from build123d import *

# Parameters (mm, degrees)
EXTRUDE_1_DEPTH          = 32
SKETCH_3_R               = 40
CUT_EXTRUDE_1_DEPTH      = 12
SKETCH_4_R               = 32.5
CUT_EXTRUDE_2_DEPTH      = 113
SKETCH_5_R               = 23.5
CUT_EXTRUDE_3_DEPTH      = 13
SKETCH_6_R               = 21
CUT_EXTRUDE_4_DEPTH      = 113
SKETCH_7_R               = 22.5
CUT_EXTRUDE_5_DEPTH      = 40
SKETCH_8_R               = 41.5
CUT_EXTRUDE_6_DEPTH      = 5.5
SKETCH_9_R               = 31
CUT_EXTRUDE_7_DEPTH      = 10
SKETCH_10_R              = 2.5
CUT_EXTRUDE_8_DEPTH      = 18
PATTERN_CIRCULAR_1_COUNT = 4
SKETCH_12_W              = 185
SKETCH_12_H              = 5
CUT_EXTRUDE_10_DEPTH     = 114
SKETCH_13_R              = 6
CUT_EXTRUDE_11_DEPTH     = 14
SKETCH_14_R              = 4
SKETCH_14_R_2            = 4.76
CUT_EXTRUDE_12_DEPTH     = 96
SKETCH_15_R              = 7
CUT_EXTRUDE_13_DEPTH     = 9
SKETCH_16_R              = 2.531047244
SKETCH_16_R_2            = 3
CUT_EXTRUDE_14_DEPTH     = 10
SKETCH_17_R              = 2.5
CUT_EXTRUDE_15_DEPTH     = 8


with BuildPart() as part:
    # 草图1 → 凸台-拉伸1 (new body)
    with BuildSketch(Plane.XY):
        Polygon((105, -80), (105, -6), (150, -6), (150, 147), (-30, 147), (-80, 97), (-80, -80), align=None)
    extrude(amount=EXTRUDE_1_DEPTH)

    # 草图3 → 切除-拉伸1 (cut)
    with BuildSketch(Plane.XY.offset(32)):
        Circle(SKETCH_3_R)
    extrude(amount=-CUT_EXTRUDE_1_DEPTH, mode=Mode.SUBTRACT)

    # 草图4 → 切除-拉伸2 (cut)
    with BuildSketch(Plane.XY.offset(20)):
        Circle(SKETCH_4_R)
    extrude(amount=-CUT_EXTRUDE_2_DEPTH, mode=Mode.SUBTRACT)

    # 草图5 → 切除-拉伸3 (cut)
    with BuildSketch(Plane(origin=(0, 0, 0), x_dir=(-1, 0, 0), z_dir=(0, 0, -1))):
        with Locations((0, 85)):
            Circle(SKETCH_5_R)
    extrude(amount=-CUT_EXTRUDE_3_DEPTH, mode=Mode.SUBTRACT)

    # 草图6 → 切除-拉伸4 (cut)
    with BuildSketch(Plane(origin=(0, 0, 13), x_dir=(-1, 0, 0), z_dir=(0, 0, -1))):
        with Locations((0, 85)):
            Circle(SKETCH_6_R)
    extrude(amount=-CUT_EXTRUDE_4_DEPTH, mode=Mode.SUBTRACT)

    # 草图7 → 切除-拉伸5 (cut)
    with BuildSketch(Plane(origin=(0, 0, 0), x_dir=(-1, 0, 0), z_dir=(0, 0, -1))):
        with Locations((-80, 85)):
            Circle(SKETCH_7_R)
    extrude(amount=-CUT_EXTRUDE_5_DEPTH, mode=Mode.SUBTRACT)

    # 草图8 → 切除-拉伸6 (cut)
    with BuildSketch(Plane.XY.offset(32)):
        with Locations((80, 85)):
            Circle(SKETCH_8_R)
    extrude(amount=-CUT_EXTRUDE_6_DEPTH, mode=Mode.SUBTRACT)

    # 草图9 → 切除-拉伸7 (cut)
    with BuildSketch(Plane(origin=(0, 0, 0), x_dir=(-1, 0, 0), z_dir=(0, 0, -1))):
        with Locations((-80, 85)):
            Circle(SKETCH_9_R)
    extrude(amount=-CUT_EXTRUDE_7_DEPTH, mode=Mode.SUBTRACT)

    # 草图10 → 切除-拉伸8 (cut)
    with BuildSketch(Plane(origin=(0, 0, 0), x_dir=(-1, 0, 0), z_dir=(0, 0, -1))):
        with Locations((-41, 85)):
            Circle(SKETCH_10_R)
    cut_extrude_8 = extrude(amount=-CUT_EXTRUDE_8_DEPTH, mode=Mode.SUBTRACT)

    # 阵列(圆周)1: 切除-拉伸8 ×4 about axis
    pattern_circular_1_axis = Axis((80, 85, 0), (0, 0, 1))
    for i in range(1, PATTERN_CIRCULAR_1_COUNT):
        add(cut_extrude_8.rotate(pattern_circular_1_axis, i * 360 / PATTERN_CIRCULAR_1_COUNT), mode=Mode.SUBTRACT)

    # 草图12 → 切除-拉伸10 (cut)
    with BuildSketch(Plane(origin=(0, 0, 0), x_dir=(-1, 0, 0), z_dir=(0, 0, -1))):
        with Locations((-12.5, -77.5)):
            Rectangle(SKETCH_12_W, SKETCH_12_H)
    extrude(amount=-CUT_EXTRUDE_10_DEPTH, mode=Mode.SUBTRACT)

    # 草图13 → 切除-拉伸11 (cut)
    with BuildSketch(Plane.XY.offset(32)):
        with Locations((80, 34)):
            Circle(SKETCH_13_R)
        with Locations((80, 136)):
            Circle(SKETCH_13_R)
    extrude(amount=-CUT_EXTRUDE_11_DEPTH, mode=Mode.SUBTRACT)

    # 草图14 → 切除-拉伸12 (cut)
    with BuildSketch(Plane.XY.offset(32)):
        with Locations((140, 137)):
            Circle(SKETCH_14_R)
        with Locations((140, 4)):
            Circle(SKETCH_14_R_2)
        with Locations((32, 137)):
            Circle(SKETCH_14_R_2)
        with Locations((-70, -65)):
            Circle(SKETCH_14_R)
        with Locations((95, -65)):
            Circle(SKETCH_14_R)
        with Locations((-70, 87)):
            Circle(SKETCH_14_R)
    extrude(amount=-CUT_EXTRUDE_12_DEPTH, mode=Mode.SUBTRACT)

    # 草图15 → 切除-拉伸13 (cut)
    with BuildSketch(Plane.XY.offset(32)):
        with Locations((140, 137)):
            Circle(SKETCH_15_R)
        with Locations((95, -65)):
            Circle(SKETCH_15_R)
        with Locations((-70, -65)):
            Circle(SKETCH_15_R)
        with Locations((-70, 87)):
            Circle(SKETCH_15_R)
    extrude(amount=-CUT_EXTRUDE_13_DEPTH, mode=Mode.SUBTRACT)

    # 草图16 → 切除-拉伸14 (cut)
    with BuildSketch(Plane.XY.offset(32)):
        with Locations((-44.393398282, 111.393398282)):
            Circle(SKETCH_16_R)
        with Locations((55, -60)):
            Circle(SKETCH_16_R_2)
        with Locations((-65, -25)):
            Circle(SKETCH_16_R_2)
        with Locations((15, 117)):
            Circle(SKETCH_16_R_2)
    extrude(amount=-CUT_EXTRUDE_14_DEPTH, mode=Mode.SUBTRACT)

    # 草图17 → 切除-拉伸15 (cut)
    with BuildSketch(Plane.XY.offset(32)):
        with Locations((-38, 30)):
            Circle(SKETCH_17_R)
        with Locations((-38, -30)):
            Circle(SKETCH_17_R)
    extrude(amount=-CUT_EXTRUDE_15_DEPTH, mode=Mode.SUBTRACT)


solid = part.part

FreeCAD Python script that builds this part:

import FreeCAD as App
import Part
import Sketcher
from FreeCAD import Vector
Q = App.Units.Quantity


def add_polygon(sketch, points):
    """Adds a closed chain of lines whose ends are joined by coincident constraints."""
    first, n = sketch.GeometryCount, len(points)
    for a, b in zip(points, points[1:] + points[:1]):
        sketch.addGeometry(Part.LineSegment(App.Vector(*a, 0), App.Vector(*b, 0)), False)
    for i in range(n):
        sketch.addConstraint(Sketcher.Constraint("Coincident", first + i, 2, first + (i + 1) % n, 1))

doc = App.newDocument("Part")
body = doc.addObject("PartDesign::Body", "Body")

# Sketch on XY plane
sketch1 = body.newObject("Sketcher::SketchObject", "Sketch")
sketch1.AttachmentSupport = (doc.getObject("XY_Plane"), [""])
sketch1.MapMode = "FlatFace"
add_polygon(sketch1, [(105, -80), (105, -6), (150, -6), (150, 147), (-30, 147), (-80, 97), (-80, -80)])  # lines 0-6
sketch1.addConstraint([
    Sketcher.Constraint("Vertical", 0),
    Sketcher.Constraint("Horizontal", 1),
    Sketcher.Constraint("Vertical", 2),
    Sketcher.Constraint("Horizontal", 3),
    Sketcher.Constraint("Vertical", 5),
    Sketcher.Constraint("Horizontal", 6),
    Sketcher.Constraint("DistanceX", 1, 1, 1, 2, Q("45 mm")),
    Sketcher.Constraint("DistanceX", 3, 2, 3, 1, Q("180 mm")),
    Sketcher.Constraint("DistanceX", 6, 1, 6, 2, Q("185 mm")),
    Sketcher.Constraint("DistanceY", 0, 1, 0, 2, Q("74 mm")),
    Sketcher.Constraint("DistanceY", 2, 1, 2, 2, Q("153 mm")),
    Sketcher.Constraint("DistanceY", 5, 2, 5, 1, Q("177 mm")),
    Sketcher.Constraint("DistanceX", -1, 1, 0, 2, Q("105 mm")),
    Sketcher.Constraint("DistanceY", 0, 2, -1, 1, Q("6 mm")),
])
pad1 = body.newObject("PartDesign::Pad", "Pad")
pad1.Profile = sketch1
pad1.Length = 32

# Sketch on XY plane
sketch2 = body.newObject("Sketcher::SketchObject", "Sketch001")
sketch2.AttachmentSupport = (doc.getObject("XY_Plane"), [""])
sketch2.MapMode = "FlatFace"
sketch2.AttachmentOffset = App.Placement(Vector(0, 0, 32), App.Rotation())
sketch2.addGeometry(Part.Circle(Vector(0, 0, 0), Vector(0, 0, 1), 40), False)
sketch2.addConstraint([
    Sketcher.Constraint("Coincident", 0, 3, -1, 1),
    Sketcher.Constraint("Diameter", 0, Q("80 mm")),
])
pocket1 = body.newObject("PartDesign::Pocket", "Pocket")
pocket1.Profile = sketch2
pocket1.Length = 12

# Sketch on XY plane
sketch3 = body.newObject("Sketcher::SketchObject", "Sketch002")
sketch3.AttachmentSupport = (doc.getObject("XY_Plane"), [""])
sketch3.MapMode = "FlatFace"
sketch3.AttachmentOffset = App.Placement(Vector(0, 0, 20), App.Rotation())
sketch3.addGeometry(Part.Circle(Vector(0, 0, 0), Vector(0, 0, 1), 32), False)
sketch3.addConstraint([
    Sketcher.Constraint("Coincident", 0, 3, -1, 1),
    Sketcher.Constraint("Diameter", 0, Q("65 mm")),
])
pocket2 = body.newObject("PartDesign::Pocket", "Pocket001")
pocket2.Profile = sketch3
pocket2.Length = 113

# Sketch on XY plane
sketch4 = body.newObject("Sketcher::SketchObject", "Sketch003")
sketch4.AttachmentSupport = (doc.getObject("XY_Plane"), [""])
sketch4.MapMode = "FlatFace"
sketch4.addGeometry(Part.Circle(Vector(0, 85, 0), Vector(0, 0, 1), 24), False)
sketch4.addConstraint([
    Sketcher.Constraint("PointOnObject", 0, 3, -2),
    Sketcher.Constraint("Diameter", 0, Q("47 mm")),
    Sketcher.Constraint("DistanceY", -1, 1, 0, 3, Q("85 mm")),
])
pocket3 = body.newObject("PartDesign::Pocket", "Pocket002")
pocket3.Profile = sketch4
pocket3.Length = 13
pocket3.Reversed = True

# Sketch on XY plane
sketch5 = body.newObject("Sketcher::SketchObject", "Sketch004")
sketch5.AttachmentSupport = (doc.getObject("XY_Plane"), [""])
sketch5.MapMode = "FlatFace"
sketch5.AttachmentOffset = App.Placement(Vector(0, 0, 13), App.Rotation())
sketch5.addGeometry(Part.Circle(Vector(0, 85, 0), Vector(0, 0, 1), 21), False)
sketch5.addConstraint([
    Sketcher.Constraint("PointOnObject", 0, 3, -2),
    Sketcher.Constraint("Diameter", 0, Q("42 mm")),
    Sketcher.Constraint("DistanceY", -1, 1, 0, 3, Q("85 mm")),
])
pocket4 = body.newObject("PartDesign::Pocket", "Pocket003")
pocket4.Profile = sketch5
pocket4.Length = 113
pocket4.Reversed = True

# Sketch on XY plane
sketch6 = body.newObject("Sketcher::SketchObject", "Sketch005")
sketch6.AttachmentSupport = (doc.getObject("XY_Plane"), [""])
sketch6.MapMode = "FlatFace"
sketch6.addGeometry(Part.Circle(Vector(80, 85, 0), Vector(0, 0, 1), 22), False)
sketch6.addConstraint([
    Sketcher.Constraint("Diameter", 0, Q("45 mm")),
    Sketcher.Constraint("DistanceX", -1, 1, 0, 3, Q("80 mm")),
    Sketcher.Constraint("DistanceY", -1, 1, 0, 3, Q("85 mm")),
])
pocket5 = body.newObject("PartDesign::Pocket", "Pocket004")
pocket5.Profile = sketch6
pocket5.Length = 40
pocket5.Reversed = True

# Sketch on XY plane
sketch7 = body.newObject("Sketcher::SketchObject", "Sketch006")
sketch7.AttachmentSupport = (doc.getObject("XY_Plane"), [""])
sketch7.MapMode = "FlatFace"
sketch7.AttachmentOffset = App.Placement(Vector(0, 0, 32), App.Rotation())
sketch7.addGeometry(Part.Circle(Vector(80, 85, 0), Vector(0, 0, 1), 42), False)
sketch7.addConstraint([
    Sketcher.Constraint("Diameter", 0, Q("83 mm")),
    Sketcher.Constraint("DistanceX", -1, 1, 0, 3, Q("80 mm")),
    Sketcher.Constraint("DistanceY", -1, 1, 0, 3, Q("85 mm")),
])
pocket6 = body.newObject("PartDesign::Pocket", "Pocket005")
pocket6.Profile = sketch7
pocket6.Length = 5.5

# Sketch on XY plane
sketch8 = body.newObject("Sketcher::SketchObject", "Sketch007")
sketch8.AttachmentSupport = (doc.getObject("XY_Plane"), [""])
sketch8.MapMode = "FlatFace"
sketch8.addGeometry(Part.Circle(Vector(80, 85, 0), Vector(0, 0, 1), 31), False)
sketch8.addConstraint([
    Sketcher.Constraint("Diameter", 0, Q("62 mm")),
    Sketcher.Constraint("DistanceX", -1, 1, 0, 3, Q("80 mm")),
    Sketcher.Constraint("DistanceY", -1, 1, 0, 3, Q("85 mm")),
])
pocket7 = body.newObject("PartDesign::Pocket", "Pocket006")
pocket7.Profile = sketch8
pocket7.Length = 10
pocket7.Reversed = True

# Sketch on XY plane
sketch9 = body.newObject("Sketcher::SketchObject", "Sketch008")
sketch9.AttachmentSupport = (doc.getObject("XY_Plane"), [""])
sketch9.MapMode = "FlatFace"
sketch9.addGeometry(Part.Circle(Vector(41, 85, 0), Vector(0, 0, 1), 2.5), False)
sketch9.addConstraint([
    Sketcher.Constraint("Diameter", 0, Q("5 mm")),
    Sketcher.Constraint("DistanceX", -1, 1, 0, 3, Q("41 mm")),
    Sketcher.Constraint("DistanceY", -1, 1, 0, 3, Q("85 mm")),
])
pocket8 = body.newObject("PartDesign::Pocket", "Pocket007")
pocket8.Profile = sketch9
pocket8.Length = 18
pocket8.Reversed = True
doc.recompute()

datumline = body.newObject("PartDesign::Line", "DatumLine")
datumline.Placement = App.Placement(Vector(80, 85, 0), App.Rotation(Vector(0, 0, 1), Vector(0, 0, 1)))
polarpattern = body.newObject("PartDesign::PolarPattern", "PolarPattern")
polarpattern.Originals = [pocket8]
polarpattern.Axis = (datumline, [""])
polarpattern.Angle = 360
polarpattern.Occurrences = 4
body.Tip = polarpattern

# Sketch on XY plane
sketch10 = body.newObject("Sketcher::SketchObject", "Sketch009")
sketch10.AttachmentSupport = (doc.getObject("XY_Plane"), [""])
sketch10.MapMode = "FlatFace"
add_polygon(sketch10, [(105, -75), (105, -80), (-80, -80), (-80, -75)])  # lines 0-3
sketch10.addConstraint([
    Sketcher.Constraint("Vertical", 0),
    Sketcher.Constraint("Horizontal", 1),
    Sketcher.Constraint("Vertical", 2),
    Sketcher.Constraint("Horizontal", 3),
    Sketcher.Constraint("DistanceX", 1, 2, 1, 1, Q("185 mm")),
    Sketcher.Constraint("DistanceY", 0, 2, 0, 1, Q("5 mm")),
    Sketcher.Constraint("DistanceX", -1, 1, 0, 2, Q("105 mm")),
    Sketcher.Constraint("DistanceY", 0, 2, -1, 1, Q("80 mm")),
])
pocket9 = body.newObject("PartDesign::Pocket", "Pocket008")
pocket9.Profile = sketch10
pocket9.Length = 114
pocket9.Reversed = True

# Sketch on XY plane
sketch11 = body.newObject("Sketcher::SketchObject", "Sketch010")
sketch11.AttachmentSupport = (doc.getObject("XY_Plane"), [""])
sketch11.MapMode = "FlatFace"
sketch11.AttachmentOffset = App.Placement(Vector(0, 0, 32), App.Rotation())
sketch11.addGeometry([
    Part.Circle(Vector(80, 34, 0), Vector(0, 0, 1), 6),
    Part.Circle(Vector(80, 136, 0), Vector(0, 0, 1), 6),
], False)
sketch11.addConstraint([
    Sketcher.Constraint("Equal", 0, 1),
    Sketcher.Constraint("Vertical", 0, 3, 1, 3),
    Sketcher.Constraint("Diameter", 0, Q("12 mm")),
    Sketcher.Constraint("DistanceX", -1, 1, 0, 3, Q("80 mm")),
    Sketcher.Constraint("DistanceY", -1, 1, 0, 3, Q("34 mm")),
    Sketcher.Constraint("DistanceY", -1, 1, 1, 3, Q("136 mm")),
])
pocket10 = body.newObject("PartDesign::Pocket", "Pocket009")
pocket10.Profile = sketch11
pocket10.Length = 14

# Sketch on XY plane
sketch12 = body.newObject("Sketcher::SketchObject", "Sketch011")
sketch12.AttachmentSupport = (doc.getObject("XY_Plane"), [""])
sketch12.MapMode = "FlatFace"
sketch12.AttachmentOffset = App.Placement(Vector(0, 0, 32), App.Rotation())
sketch12.addGeometry([
    Part.Circle(Vector(140, 137, 0), Vector(0, 0, 1), 4),  # 0
    Part.Circle(Vector(140, 4, 0), Vector(0, 0, 1), 4.8),  # 1
    Part.Circle(Vector(32, 137, 0), Vector(0, 0, 1), 4.8),  # 2
    Part.Circle(Vector(-70, -65, 0), Vector(0, 0, 1), 4),  # 3
    Part.Circle(Vector(95, -65, 0), Vector(0, 0, 1), 4),  # 4
    Part.Circle(Vector(-70, 87, 0), Vector(0, 0, 1), 4),  # 5
], False)
sketch12.addConstraint([
    Sketcher.Constraint("Equal", 1, 2),
    Sketcher.Constraint("Equal", 0, 3),
    Sketcher.Constraint("Equal", 3, 4),
    Sketcher.Constraint("Equal", 4, 5),
    Sketcher.Constraint("Horizontal", 0, 3, 2, 3),
    Sketcher.Constraint("Horizontal", 3, 3, 4, 3),
    Sketcher.Constraint("Vertical", 0, 3, 1, 3),
    Sketcher.Constraint("Vertical", 3, 3, 5, 3),
    Sketcher.Constraint("Diameter", 0, Q("8 mm")),
    Sketcher.Constraint("Diameter", 1, Q("9.52 mm")),
    Sketcher.Constraint("DistanceX", -1, 1, 0, 3, Q("140 mm")),
    Sketcher.Constraint("DistanceY", -1, 1, 0, 3, Q("137 mm")),
    Sketcher.Constraint("DistanceY", -1, 1, 1, 3, Q("4 mm")),
    Sketcher.Constraint("DistanceX", -1, 1, 2, 3, Q("32 mm")),
    Sketcher.Constraint("DistanceX", 3, 3, -1, 1, Q("70 mm")),
    Sketcher.Constraint("DistanceY", 3, 3, -1, 1, Q("65 mm")),
    Sketcher.Constraint("DistanceX", -1, 1, 4, 3, Q("95 mm")),
    Sketcher.Constraint("DistanceY", -1, 1, 5, 3, Q("87 mm")),
])
pocket11 = body.newObject("PartDesign::Pocket", "Pocket010")
pocket11.Profile = sketch12
pocket11.Length = 96

# Sketch on XY plane
sketch13 = body.newObject("Sketcher::SketchObject", "Sketch012")
sketch13.AttachmentSupport = (doc.getObject("XY_Plane"), [""])
sketch13.MapMode = "FlatFace"
sketch13.AttachmentOffset = App.Placement(Vector(0, 0, 32), App.Rotation())
sketch13.addGeometry([
    Part.Circle(Vector(140, 137, 0), Vector(0, 0, 1), 7),
    Part.Circle(Vector(95, -65, 0), Vector(0, 0, 1), 7),
    Part.Circle(Vector(-70, -65, 0), Vector(0, 0, 1), 7),
    Part.Circle(Vector(-70, 87, 0), Vector(0, 0, 1), 7),
], False)
sketch13.addConstraint([
    Sketcher.Constraint("Equal", 0, 1),
    Sketcher.Constraint("Equal", 1, 2),
    Sketcher.Constraint("Equal", 2, 3),
    Sketcher.Constraint("Horizontal", 1, 3, 2, 3),
    Sketcher.Constraint("Vertical", 2, 3, 3, 3),
    Sketcher.Constraint("Diameter", 0, Q("14 mm")),
    Sketcher.Constraint("DistanceX", -1, 1, 0, 3, Q("140 mm")),
    Sketcher.Constraint("DistanceY", -1, 1, 0, 3, Q("137 mm")),
    Sketcher.Constraint("DistanceX", -1, 1, 1, 3, Q("95 mm")),
    Sketcher.Constraint("DistanceY", 1, 3, -1, 1, Q("65 mm")),
    Sketcher.Constraint("DistanceX", 2, 3, -1, 1, Q("70 mm")),
    Sketcher.Constraint("DistanceY", -1, 1, 3, 3, Q("87 mm")),
])
pocket12 = body.newObject("PartDesign::Pocket", "Pocket011")
pocket12.Profile = sketch13
pocket12.Length = 9

# Sketch on XY plane
sketch14 = body.newObject("Sketcher::SketchObject", "Sketch013")
sketch14.AttachmentSupport = (doc.getObject("XY_Plane"), [""])
sketch14.MapMode = "FlatFace"
sketch14.AttachmentOffset = App.Placement(Vector(0, 0, 32), App.Rotation())
sketch14.addGeometry([
    Part.Circle(Vector(-44.4, 111.4, 0), Vector(0, 0, 1), 2.5),
    Part.Circle(Vector(55, -60, 0), Vector(0, 0, 1), 3),
    Part.Circle(Vector(-65, -25, 0), Vector(0, 0, 1), 3),
    Part.Circle(Vector(15, 117, 0), Vector(0, 0, 1), 3),
], False)
sketch14.addConstraint([
    Sketcher.Constraint("Equal", 1, 2),
    Sketcher.Constraint("Equal", 2, 3),
    Sketcher.Constraint("Diameter", 1, Q("6 mm")),
    Sketcher.Constraint("DistanceX", -1, 1, 1, 3, Q("55 mm")),
    Sketcher.Constraint("DistanceY", 1, 3, -1, 1, Q("60 mm")),
    Sketcher.Constraint("DistanceX", 2, 3, -1, 1, Q("65 mm")),
    Sketcher.Constraint("DistanceY", 2, 3, -1, 1, Q("25 mm")),
    Sketcher.Constraint("DistanceX", -1, 1, 3, 3, Q("15 mm")),
    Sketcher.Constraint("DistanceY", -1, 1, 3, 3, Q("117 mm")),
    Sketcher.Constraint("Diameter", 0, Q("5.062094 mm")),
    Sketcher.Constraint("DistanceX", 0, 3, -1, 1, Q("44.393398 mm")),
    Sketcher.Constraint("DistanceY", -1, 1, 0, 3, Q("111.393398 mm")),
])
pocket13 = body.newObject("PartDesign::Pocket", "Pocket012")
pocket13.Profile = sketch14
pocket13.Length = 10

# Sketch on XY plane
sketch15 = body.newObject("Sketcher::SketchObject", "Sketch014")
sketch15.AttachmentSupport = (doc.getObject("XY_Plane"), [""])
sketch15.MapMode = "FlatFace"
sketch15.AttachmentOffset = App.Placement(Vector(0, 0, 32), App.Rotation())
sketch15.addGeometry([
    Part.Circle(Vector(-38, 30, 0), Vector(0, 0, 1), 2.5),
    Part.Circle(Vector(-38, -30, 0), Vector(0, 0, 1), 2.5),
], False)
sketch15.addConstraint([
    Sketcher.Constraint("Equal", 0, 1),
    Sketcher.Constraint("Symmetric", 0, 3, 1, 3, -1),
    Sketcher.Constraint("Diameter", 0, Q("5 mm")),
    Sketcher.Constraint("DistanceX", 0, 3, -1, 1, Q("38 mm")),
    Sketcher.Constraint("DistanceY", -1, 1, 0, 3, Q("30 mm")),
])
pocket14 = body.newObject("PartDesign::Pocket", "Pocket013")
pocket14.Profile = sketch15
pocket14.Length = 8

doc.recompute()
